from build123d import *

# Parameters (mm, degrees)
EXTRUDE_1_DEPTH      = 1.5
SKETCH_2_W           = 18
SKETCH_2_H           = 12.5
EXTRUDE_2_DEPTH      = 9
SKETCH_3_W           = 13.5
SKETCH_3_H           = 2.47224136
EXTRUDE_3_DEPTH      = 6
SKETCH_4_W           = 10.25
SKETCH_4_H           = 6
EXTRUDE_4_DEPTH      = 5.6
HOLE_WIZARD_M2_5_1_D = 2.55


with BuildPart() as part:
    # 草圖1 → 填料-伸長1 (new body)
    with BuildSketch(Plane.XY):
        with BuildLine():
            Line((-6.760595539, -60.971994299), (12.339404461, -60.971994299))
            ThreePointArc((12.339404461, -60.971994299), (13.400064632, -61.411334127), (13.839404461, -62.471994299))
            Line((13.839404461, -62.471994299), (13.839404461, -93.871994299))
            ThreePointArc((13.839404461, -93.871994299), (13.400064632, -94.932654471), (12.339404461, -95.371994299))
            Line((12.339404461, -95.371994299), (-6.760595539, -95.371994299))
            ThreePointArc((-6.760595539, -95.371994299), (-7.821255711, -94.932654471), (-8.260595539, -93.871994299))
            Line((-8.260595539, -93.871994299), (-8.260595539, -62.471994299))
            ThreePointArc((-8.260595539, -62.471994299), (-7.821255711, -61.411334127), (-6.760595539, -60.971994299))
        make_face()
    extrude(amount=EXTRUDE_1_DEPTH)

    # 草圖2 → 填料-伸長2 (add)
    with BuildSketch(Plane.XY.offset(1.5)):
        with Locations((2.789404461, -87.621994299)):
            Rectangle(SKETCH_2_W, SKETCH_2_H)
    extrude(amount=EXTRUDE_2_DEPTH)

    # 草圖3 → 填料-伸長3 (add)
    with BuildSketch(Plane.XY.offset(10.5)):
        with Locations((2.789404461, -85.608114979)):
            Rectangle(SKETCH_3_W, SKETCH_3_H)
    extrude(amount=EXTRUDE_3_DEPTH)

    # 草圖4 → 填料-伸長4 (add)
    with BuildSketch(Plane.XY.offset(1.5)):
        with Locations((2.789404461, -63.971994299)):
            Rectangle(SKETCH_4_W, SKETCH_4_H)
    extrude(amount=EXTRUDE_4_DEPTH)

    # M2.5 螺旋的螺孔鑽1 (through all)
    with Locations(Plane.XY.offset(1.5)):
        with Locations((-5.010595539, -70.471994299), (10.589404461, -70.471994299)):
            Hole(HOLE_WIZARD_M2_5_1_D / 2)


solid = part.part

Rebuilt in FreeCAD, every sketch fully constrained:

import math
import FreeCAD as App
import Part
import Sketcher
from FreeCAD import Vector

doc = App.newDocument("Part")
body = doc.addObject("PartDesign::Body", "Body")

sketch1 = doc.addObject("Sketcher::SketchObject", "Sketch")
body.addObject(sketch1)
sketch1.AttachmentSupport = (doc.XY_Plane, [""])
sketch1.MapMode = "FlatFace"
sketch1.addGeometry(Part.LineSegment(Vector(12.339404, -60.971994, 0), Vector(-6.760596, -60.971994, 0)), False)
sketch1.addGeometry(Part.ArcOfCircle(Part.Circle(Vector(-6.760596, -62.471994, 0), Vector(0, 0, 1), 1.5), math.radians(90), math.radians(180)), False)
sketch1.addGeometry(Part.LineSegment(Vector(-8.260596, -62.471994, 0), Vector(-8.260596, -93.871994, 0)), False)
sketch1.addGeometry(Part.ArcOfCircle(Part.Circle(Vector(-6.760596, -93.871994, 0), Vector(0, 0, 1), 1.5), math.radians(180), math.radians(270)), False)
sketch1.addGeometry(Part.LineSegment(Vector(-6.760596, -95.371994, 0), Vector(12.339404, -95.371994, 0)), False)
sketch1.addGeometry(Part.ArcOfCircle(Part.Circle(Vector(12.339404, -93.871994, 0), Vector(0, 0, 1), 1.5), math.radians(-90), math.radians(0)), False)
sketch1.addGeometry(Part.LineSegment(Vector(13.839404, -93.871994, 0), Vector(13.839404, -62.471994, 0)), False)
sketch1.addGeometry(Part.ArcOfCircle(Part.Circle(Vector(12.339404, -62.471994, 0), Vector(0, 0, 1), 1.5), math.radians(0), math.radians(90)), False)
sketch1.addConstraint(Sketcher.Constraint("Tangent", 0, 2, 1, 1))
sketch1.addConstraint(Sketcher.Constraint("Tangent", 1, 2, 2, 1))
sketch1.addConstraint(Sketcher.Constraint("Tangent", 2, 2, 3, 1))
sketch1.addConstraint(Sketcher.Constraint("Tangent", 3, 2, 4, 1))
sketch1.addConstraint(Sketcher.Constraint("Tangent", 4, 2, 5, 1))
sketch1.addConstraint(Sketcher.Constraint("Tangent", 5, 2, 6, 1))
sketch1.addConstraint(Sketcher.Constraint("Tangent", 6, 2, 7, 1))
sketch1.addConstraint(Sketcher.Constraint("Tangent", 7, 2, 0, 1))
sketch1.addConstraint(Sketcher.Constraint("Horizontal", 0))
sketch1.addConstraint(Sketcher.Constraint("Vertical", 2))
sketch1.addConstraint(Sketcher.Constraint("Horizontal", 4))
sketch1.addConstraint(Sketcher.Constraint("Vertical", 6))
sketch1.addConstraint(Sketcher.Constraint("Equal", 1, 3))
sketch1.addConstraint(Sketcher.Constraint("Equal", 3, 5))
sketch1.addConstraint(Sketcher.Constraint("Equal", 5, 7))
sketch1.addConstraint(Sketcher.Constraint("Radius", 1, 1.5))
sketch1.addConstraint(Sketcher.Constraint("DistanceX", 0, 2, 0, 1, 19.1))
sketch1.addConstraint(Sketcher.Constraint("DistanceY", 2, 2, 2, 1, 31.4))
sketch1.addConstraint(Sketcher.Constraint("DistanceX", 1, 3, -1, 1, 6.760596))
sketch1.addConstraint(Sketcher.Constraint("DistanceY", 1, 3, -1, 1, 62.471994))
pad1 = doc.addObject("PartDesign::Pad", "Pad")
body.addObject(pad1)
pad1.Profile = sketch1
pad1.Length = 1.5

sketch2 = doc.addObject("Sketcher::SketchObject", "Sketch001")
body.addObject(sketch2)
sketch2.AttachmentSupport = (doc.XY_Plane, [""])
sketch2.MapMode = "FlatFace"
sketch2.AttachmentOffset = App.Placement(Vector(0, 0, 1.5), App.Rotation())
sketch2.addGeometry(Part.LineSegment(Vector(-6.210596, -81.371994, 0), Vector(-6.210596, -93.871994, 0)), False)
sketch2.addGeometry(Part.LineSegment(Vector(-6.210596, -93.871994, 0), Vector(11.789404, -93.871994, 0)), False)
sketch2.addGeometry(Part.LineSegment(Vector(11.789404, -93.871994, 0), Vector(11.789404, -81.371994, 0)), False)
sketch2.addGeometry(Part.LineSegment(Vector(11.789404, -81.371994, 0), Vector(-6.210596, -81.371994, 0)), False)
sketch2.addConstraint(Sketcher.Constraint("Coincident", 0, 2, 1, 1))
sketch2.addConstraint(Sketcher.Constraint("Coincident", 1, 2, 2, 1))
sketch2.addConstraint(Sketcher.Constraint("Coincident", 2, 2, 3, 1))
sketch2.addConstraint(Sketcher.Constraint("Coincident", 3, 2, 0, 1))
sketch2.addConstraint(Sketcher.Constraint("Vertical", 0))
sketch2.addConstraint(Sketcher.Constraint("Horizontal", 1))
sketch2.addConstraint(Sketcher.Constraint("Vertical", 2))
sketch2.addConstraint(Sketcher.Constraint("Horizontal", 3))
sketch2.addConstraint(Sketcher.Constraint("DistanceX", 1, 1, 1, 2, 18.0))
sketch2.addConstraint(Sketcher.Constraint("DistanceY", 0, 2, 0, 1, 12.5))
sketch2.addConstraint(Sketcher.Constraint("DistanceX", 0, 2, -1, 1, 6.210596))
sketch2.addConstraint(Sketcher.Constraint("DistanceY", 0, 2, -1, 1, 93.871994))
pad2 = doc.addObject("PartDesign::Pad", "Pad001")
body.addObject(pad2)
pad2.Profile = sketch2
pad2.Length = 9

sketch3 = doc.addObject("Sketcher::SketchObject", "Sketch002")
body.addObject(sketch3)
sketch3.AttachmentSupport = (doc.XY_Plane, [""])
sketch3.MapMode = "FlatFace"
sketch3.AttachmentOffset = App.Placement(Vector(0, 0, 10.5), App.Rotation())
sketch3.addGeometry(Part.LineSegment(Vector(-3.960596, -84.371994, 0), Vector(-3.960596, -86.844236, 0)), False)
sketch3.addGeometry(Part.LineSegment(Vector(-3.960596, -86.844236, 0), Vector(9.539404, -86.844236, 0)), False)
sketch3.addGeometry(Part.LineSegment(Vector(9.539404, -86.844236, 0), Vector(9.539404, -84.371994, 0)), False)
sketch3.addGeometry(Part.LineSegment(Vector(9.539404, -84.371994, 0), Vector(-3.960596, -84.371994, 0)), False)
sketch3.addConstraint(Sketcher.Constraint("Coincident", 0, 2, 1, 1))
sketch3.addConstraint(Sketcher.Constraint("Coincident", 1, 2, 2, 1))
sketch3.addConstraint(Sketcher.Constraint("Coincident", 2, 2, 3, 1))
sketch3.addConstraint(Sketcher.Constraint("Coincident", 3, 2, 0, 1))
sketch3.addConstraint(Sketcher.Constraint("Vertical", 0))
sketch3.addConstraint(Sketcher.Constraint("Horizontal", 1))
sketch3.addConstraint(Sketcher.Constraint("Vertical", 2))
sketch3.addConstraint(Sketcher.Constraint("Horizontal", 3))
sketch3.addConstraint(Sketcher.Constraint("DistanceX", 1, 1, 1, 2, 13.5))
sketch3.addConstraint(Sketcher.Constraint("DistanceY", 0, 2, 0, 1, 2.472241))
sketch3.addConstraint(Sketcher.Constraint("DistanceX", 0, 2, -1, 1, 3.960596))
sketch3.addConstraint(Sketcher.Constraint("DistanceY", 0, 2, -1, 1, 86.844236))
pad3 = doc.addObject("PartDesign::Pad", "Pad002")
body.addObject(pad3)
pad3.Profile = sketch3
pad3.Length = 6

sketch4 = doc.addObject("Sketcher::SketchObject", "Sketch003")
body.addObject(sketch4)
sketch4.AttachmentSupport = (doc.XY_Plane, [""])
sketch4.MapMode = "FlatFace"
sketch4.AttachmentOffset = App.Placement(Vector(0, 0, 1.5), App.Rotation())
sketch4.addGeometry(Part.LineSegment(Vector(-2.335596, -60.971994, 0), Vector(-2.335596, -66.971994, 0)), False)
sketch4.addGeometry(Part.LineSegment(Vector(-2.335596, -66.971994, 0), Vector(7.914404, -66.971994, 0)), False)
sketch4.addGeometry(Part.LineSegment(Vector(7.914404, -66.971994, 0), Vector(7.914404, -60.971994, 0)), False)
sketch4.addGeometry(Part.LineSegment(Vector(7.914404, -60.971994, 0), Vector(-2.335596, -60.971994, 0)), False)
sketch4.addConstraint(Sketcher.Constraint("Coincident", 0, 2, 1, 1))
sketch4.addConstraint(Sketcher.Constraint("Coincident", 1, 2, 2, 1))
sketch4.addConstraint(Sketcher.Constraint("Coincident", 2, 2, 3, 1))
sketch4.addConstraint(Sketcher.Constraint("Coincident", 3, 2, 0, 1))
sketch4.addConstraint(Sketcher.Constraint("Vertical", 0))
sketch4.addConstraint(Sketcher.Constraint("Horizontal", 1))
sketch4.addConstraint(Sketcher.Constraint("Vertical", 2))
sketch4.addConstraint(Sketcher.Constraint("Horizontal", 3))
sketch4.addConstraint(Sketcher.Constraint("DistanceY", 0, 2, 0, 1, 6.0))
sketch4.addConstraint(Sketcher.Constraint("DistanceX", 1, 1, 1, 2, 10.25))
sketch4.addConstraint(Sketcher.Constraint("DistanceX", 0, 2, -1, 1, 2.335596))
sketch4.addConstraint(Sketcher.Constraint("DistanceY", 0, 2, -1, 1, 66.971994))
pad4 = doc.addObject("PartDesign::Pad", "Pad003")
body.addObject(pad4)
pad4.Profile = sketch4
pad4.Length = 5.6

sketch5 = doc.addObject("Sketcher::SketchObject", "Sketch004")
body.addObject(sketch5)
sketch5.AttachmentSupport = (doc.XY_Plane, [""])
sketch5.MapMode = "FlatFace"
sketch5.AttachmentOffset = App.Placement(Vector(0, 0, 1.5), App.Rotation())
sketch5.addGeometry(Part.Circle(Vector(-5.010596, -70.471994, 0), Vector(0, 0, 1), 1.275), False)
sketch5.addGeometry(Part.Circle(Vector(10.589404, -70.471994, 0), Vector(0, 0, 1), 1.275), False)
sketch5.addConstraint(Sketcher.Constraint("Equal", 0, 1))
sketch5.addConstraint(Sketcher.Constraint("Horizontal", 0, 3, 1, 3))
sketch5.addConstraint(Sketcher.Constraint("Diameter", 0, 2.55))
sketch5.addConstraint(Sketcher.Constraint("DistanceX", 0, 3, 1, 3, 15.6))
sketch5.addConstraint(Sketcher.Constraint("DistanceX", 0, 3, -1, 1, 5.010596))
sketch5.addConstraint(Sketcher.Constraint("DistanceY", 0, 3, -1, 1, 70.471994))
doc.recompute()
hole = doc.addObject("PartDesign::Hole", "Hole")
body.addObject(hole)
hole.Profile = sketch5
hole.ThreadType = "None"
hole.Diameter = 2.55
hole.DepthType = "ThroughAll"

doc.recompute()
